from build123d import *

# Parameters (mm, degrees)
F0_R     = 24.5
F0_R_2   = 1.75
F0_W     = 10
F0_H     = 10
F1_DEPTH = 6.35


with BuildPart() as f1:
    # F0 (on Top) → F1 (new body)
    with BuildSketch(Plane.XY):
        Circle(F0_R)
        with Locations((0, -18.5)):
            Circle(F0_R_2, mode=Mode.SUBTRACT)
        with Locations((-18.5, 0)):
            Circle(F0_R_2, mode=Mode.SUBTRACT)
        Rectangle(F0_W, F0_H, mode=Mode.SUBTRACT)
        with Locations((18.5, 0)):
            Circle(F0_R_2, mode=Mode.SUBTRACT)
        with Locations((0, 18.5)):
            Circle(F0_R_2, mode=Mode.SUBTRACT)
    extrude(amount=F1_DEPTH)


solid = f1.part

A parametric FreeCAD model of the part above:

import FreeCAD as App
import Part
import Sketcher

V = App.Vector

doc = App.newDocument("Part")
body = doc.addObject("PartDesign::Body", "Body")

sketch1 = body.newObject("Sketcher::SketchObject", "Sketch")
sketch1.AttachmentSupport = (doc.getObject("XY_Plane"), [""])
sketch1.MapMode = "FlatFace"
sketch1.addGeometry([
    Part.Circle(V(0, 0, 0), V(0, 0, 1), 24.5),
    Part.Circle(V(0, -18.5, 0), V(0, 0, 1), 1.8),
    Part.Circle(V(-18.5, 0, 0), V(0, 0, 1), 1.8),
    Part.LineSegment(V(5, -5, 0), V(-5, -5, 0)),
    Part.LineSegment(V(-5, -5, 0), V(-5, 5, 0)),
    Part.LineSegment(V(-5, 5, 0), V(5, 5, 0)),
    Part.LineSegment(V(5, 5, 0), V(5, -5, 0)),
    Part.Circle(V(18.5, 0, 0), V(0, 0, 1), 1.8),
    Part.Circle(V(0, 18.5, 0), V(0, 0, 1), 1.8),
], False)
sketch1.addConstraint([
    Sketcher.Constraint("Coincident", 3, 2, 4, 1),
    Sketcher.Constraint("Coincident", 4, 2, 5, 1),
    Sketcher.Constraint("Coincident", 5, 2, 6, 1),
    Sketcher.Constraint("Coincident", 6, 2, 3, 1),
    Sketcher.Constraint("Horizontal", 3),
    Sketcher.Constraint("Vertical", 4),
    Sketcher.Constraint("Horizontal", 5),
    Sketcher.Constraint("Vertical", 6),
    Sketcher.Constraint("Coincident", 0, 3, -1, 1),
    Sketcher.Constraint("Equal", 1, 2),
    Sketcher.Constraint("Equal", 2, 7),
    Sketcher.Constraint("Equal", 7, 8),
    Sketcher.Constraint("Symmetric", 2, 3, 7, 3, -1, 1),
    Sketcher.Constraint("Symmetric", 1, 3, 8, 3, -1, 1),
    Sketcher.Constraint("Symmetric", 3, 2, 5, 2, -1, 1),
    Sketcher.Constraint("PointOnObject", 1, 3, -2),
    Sketcher.Constraint("PointOnObject", 2, 3, -1),
    Sketcher.Constraint("Equal", 5, 4),
    Sketcher.Constraint("Diameter", 0, 49.0),
    Sketcher.Constraint("Diameter", 1, 3.5),
    Sketcher.Constraint("DistanceX", 3, 2, 3, 1, 10.0),
    Sketcher.Constraint("DistanceX", 2, 3, 7, 3, 37.0),
    Sketcher.Constraint("DistanceY", 1, 3, 8, 3, 37.0),
])
pad1 = body.newObject("PartDesign::Pad", "Pad")
pad1.Profile = sketch1
pad1.Length = 6.35

doc.recompute()
